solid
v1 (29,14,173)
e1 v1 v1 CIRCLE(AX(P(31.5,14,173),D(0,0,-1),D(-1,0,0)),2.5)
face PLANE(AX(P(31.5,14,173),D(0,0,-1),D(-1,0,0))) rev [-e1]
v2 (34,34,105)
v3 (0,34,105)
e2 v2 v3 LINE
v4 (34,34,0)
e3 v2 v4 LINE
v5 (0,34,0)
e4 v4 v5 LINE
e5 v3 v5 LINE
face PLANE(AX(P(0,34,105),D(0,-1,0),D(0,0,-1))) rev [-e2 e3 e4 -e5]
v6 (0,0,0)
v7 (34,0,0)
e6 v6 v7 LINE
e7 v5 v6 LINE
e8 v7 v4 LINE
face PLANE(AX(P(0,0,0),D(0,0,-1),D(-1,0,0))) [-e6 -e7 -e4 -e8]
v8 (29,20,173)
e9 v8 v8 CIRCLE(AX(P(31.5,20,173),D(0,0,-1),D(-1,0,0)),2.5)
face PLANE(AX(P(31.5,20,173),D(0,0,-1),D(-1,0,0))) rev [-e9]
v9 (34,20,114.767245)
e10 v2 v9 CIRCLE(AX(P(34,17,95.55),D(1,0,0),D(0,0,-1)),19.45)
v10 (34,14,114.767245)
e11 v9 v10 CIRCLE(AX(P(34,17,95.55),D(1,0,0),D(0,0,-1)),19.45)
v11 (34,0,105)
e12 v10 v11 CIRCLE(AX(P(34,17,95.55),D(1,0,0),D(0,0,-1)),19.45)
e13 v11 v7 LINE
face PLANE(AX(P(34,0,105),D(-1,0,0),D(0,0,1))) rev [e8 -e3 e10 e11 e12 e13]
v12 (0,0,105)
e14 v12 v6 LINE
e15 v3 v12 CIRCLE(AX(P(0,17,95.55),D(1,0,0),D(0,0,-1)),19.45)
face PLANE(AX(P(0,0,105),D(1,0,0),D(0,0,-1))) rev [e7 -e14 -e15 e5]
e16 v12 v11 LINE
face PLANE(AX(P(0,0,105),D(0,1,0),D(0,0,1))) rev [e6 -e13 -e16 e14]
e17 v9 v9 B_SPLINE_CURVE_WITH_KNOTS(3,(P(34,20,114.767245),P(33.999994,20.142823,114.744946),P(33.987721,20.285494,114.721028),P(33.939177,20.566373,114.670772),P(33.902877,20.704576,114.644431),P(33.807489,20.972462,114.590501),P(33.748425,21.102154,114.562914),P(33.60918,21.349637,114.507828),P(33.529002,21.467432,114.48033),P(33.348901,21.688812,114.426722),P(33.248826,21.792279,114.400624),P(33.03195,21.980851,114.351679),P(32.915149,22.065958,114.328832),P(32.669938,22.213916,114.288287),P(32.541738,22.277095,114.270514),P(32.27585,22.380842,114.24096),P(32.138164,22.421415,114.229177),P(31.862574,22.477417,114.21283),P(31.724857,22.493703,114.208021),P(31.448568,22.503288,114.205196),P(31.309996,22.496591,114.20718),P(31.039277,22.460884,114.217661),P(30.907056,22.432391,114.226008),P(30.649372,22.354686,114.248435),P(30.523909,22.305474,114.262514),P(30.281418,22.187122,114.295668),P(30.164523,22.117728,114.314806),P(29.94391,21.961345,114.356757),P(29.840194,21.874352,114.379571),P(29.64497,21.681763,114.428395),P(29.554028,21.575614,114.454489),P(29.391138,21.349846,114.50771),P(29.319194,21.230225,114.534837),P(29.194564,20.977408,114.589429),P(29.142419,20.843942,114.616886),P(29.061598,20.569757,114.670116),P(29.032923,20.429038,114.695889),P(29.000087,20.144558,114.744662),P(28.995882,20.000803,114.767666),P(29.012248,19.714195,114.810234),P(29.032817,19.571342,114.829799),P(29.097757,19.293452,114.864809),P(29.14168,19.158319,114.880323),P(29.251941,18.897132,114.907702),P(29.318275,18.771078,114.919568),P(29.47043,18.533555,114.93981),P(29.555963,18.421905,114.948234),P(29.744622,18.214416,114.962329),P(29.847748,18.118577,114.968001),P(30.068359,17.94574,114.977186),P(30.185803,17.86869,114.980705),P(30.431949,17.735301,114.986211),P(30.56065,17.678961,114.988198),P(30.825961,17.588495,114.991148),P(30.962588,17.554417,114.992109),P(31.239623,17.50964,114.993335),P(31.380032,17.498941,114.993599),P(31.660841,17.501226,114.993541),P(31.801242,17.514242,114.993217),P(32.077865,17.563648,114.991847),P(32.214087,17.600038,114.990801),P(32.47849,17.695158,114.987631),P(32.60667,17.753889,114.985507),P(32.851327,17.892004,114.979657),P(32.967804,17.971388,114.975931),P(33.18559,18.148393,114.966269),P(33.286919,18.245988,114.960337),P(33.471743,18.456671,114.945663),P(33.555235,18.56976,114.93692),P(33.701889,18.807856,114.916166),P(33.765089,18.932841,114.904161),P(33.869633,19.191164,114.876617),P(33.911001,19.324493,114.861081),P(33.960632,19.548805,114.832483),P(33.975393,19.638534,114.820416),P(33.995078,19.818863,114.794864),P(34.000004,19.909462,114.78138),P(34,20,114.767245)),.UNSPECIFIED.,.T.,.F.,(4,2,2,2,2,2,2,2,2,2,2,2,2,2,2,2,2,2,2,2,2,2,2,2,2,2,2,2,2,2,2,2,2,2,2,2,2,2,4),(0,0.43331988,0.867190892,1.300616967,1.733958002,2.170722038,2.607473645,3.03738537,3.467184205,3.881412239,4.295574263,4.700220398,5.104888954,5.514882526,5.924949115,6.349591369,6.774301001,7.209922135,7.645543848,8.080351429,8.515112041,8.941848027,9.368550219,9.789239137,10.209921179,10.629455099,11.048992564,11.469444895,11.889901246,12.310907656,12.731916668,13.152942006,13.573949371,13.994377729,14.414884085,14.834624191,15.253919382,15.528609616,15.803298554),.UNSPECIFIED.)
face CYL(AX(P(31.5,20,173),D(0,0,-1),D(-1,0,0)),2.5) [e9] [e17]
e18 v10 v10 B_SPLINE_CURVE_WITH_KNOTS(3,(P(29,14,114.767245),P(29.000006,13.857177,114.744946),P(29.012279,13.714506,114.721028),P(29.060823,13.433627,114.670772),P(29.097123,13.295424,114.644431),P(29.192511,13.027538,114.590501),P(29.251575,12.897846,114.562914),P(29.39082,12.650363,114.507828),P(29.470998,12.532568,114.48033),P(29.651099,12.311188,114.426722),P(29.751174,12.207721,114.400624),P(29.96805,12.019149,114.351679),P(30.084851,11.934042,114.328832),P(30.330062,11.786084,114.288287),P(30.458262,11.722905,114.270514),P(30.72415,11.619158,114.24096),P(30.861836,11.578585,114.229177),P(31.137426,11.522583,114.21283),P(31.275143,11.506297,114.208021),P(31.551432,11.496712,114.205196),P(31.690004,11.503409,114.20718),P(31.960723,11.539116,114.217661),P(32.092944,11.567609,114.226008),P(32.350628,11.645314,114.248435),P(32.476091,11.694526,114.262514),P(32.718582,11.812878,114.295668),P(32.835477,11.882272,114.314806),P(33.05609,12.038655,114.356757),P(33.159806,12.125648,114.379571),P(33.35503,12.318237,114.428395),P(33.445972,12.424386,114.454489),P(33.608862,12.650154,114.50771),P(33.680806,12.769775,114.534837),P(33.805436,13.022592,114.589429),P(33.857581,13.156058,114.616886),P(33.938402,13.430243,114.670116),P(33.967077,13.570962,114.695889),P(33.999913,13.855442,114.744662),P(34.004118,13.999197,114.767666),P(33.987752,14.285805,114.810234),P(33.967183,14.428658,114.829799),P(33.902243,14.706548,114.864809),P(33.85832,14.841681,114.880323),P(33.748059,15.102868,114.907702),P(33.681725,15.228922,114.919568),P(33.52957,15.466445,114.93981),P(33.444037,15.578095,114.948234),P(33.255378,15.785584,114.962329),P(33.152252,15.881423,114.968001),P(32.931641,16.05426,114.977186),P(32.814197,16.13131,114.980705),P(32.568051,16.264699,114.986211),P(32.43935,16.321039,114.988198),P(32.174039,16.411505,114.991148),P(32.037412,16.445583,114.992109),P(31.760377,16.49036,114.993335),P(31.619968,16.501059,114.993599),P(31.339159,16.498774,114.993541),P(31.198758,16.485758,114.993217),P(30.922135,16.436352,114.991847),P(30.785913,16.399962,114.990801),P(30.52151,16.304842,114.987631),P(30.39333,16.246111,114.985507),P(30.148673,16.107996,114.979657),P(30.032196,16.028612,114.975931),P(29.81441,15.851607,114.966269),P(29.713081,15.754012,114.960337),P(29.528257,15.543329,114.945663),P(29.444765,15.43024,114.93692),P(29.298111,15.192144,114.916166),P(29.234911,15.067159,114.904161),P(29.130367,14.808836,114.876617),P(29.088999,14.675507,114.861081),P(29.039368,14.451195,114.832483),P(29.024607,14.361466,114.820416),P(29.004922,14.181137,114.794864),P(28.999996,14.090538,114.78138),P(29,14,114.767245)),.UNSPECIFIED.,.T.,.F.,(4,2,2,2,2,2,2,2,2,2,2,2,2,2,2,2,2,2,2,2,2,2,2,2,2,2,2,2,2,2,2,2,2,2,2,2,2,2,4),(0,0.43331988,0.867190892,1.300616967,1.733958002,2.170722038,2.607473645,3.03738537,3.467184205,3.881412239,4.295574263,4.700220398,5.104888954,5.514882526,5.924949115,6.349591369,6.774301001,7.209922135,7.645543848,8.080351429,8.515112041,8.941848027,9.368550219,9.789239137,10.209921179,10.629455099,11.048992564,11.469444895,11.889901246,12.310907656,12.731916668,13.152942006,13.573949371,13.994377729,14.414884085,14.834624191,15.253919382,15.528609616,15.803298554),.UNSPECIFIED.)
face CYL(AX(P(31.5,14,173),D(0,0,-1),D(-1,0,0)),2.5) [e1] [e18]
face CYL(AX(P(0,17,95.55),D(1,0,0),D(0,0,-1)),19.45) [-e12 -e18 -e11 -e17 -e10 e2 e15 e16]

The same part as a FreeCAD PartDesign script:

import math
import FreeCAD as App
import Part
import Sketcher


def add_polygon(sketch, points):
    """Adds a closed chain of lines whose ends are joined by coincident constraints."""
    first, n = sketch.GeometryCount, len(points)
    for a, b in zip(points, points[1:] + points[:1]):
        sketch.addGeometry(Part.LineSegment(App.Vector(*a, 0), App.Vector(*b, 0)), False)
    for i in range(n):
        sketch.addConstraint(Sketcher.Constraint("Coincident", first + i, 2, first + (i + 1) % n, 1))

doc = App.newDocument("Part")
body = doc.addObject("PartDesign::Body", "Body")

# Sketch on XY plane
sketch1 = body.newObject("Sketcher::SketchObject", "Sketch")
sketch1.AttachmentSupport = (doc.getObject("XY_Plane"), [""])
sketch1.MapMode = "FlatFace"
add_polygon(sketch1, [(0, 34), (0, 0), (34, 0), (34, 34)])  # lines 0-3
sketch1.addConstraint(Sketcher.Constraint("Vertical", 0))
sketch1.addConstraint(Sketcher.Constraint("Horizontal", 1))
sketch1.addConstraint(Sketcher.Constraint("Vertical", 2))
sketch1.addConstraint(Sketcher.Constraint("Horizontal", 3))
sketch1.addConstraint(Sketcher.Constraint("Coincident", 0, 2, -1, 1))
sketch1.addConstraint(Sketcher.Constraint("Equal", 3, 0))
sketch1.addConstraint(Sketcher.Constraint("DistanceX", 1, 1, 1, 2, 34.0))
pad1 = body.newObject("PartDesign::Pad", "Pad")
pad1.Profile = sketch1
pad1.Length = 105

# Sketch on YZ plane
sketch2 = body.newObject("Sketcher::SketchObject", "Sketch001")
sketch2.AttachmentSupport = (doc.getObject("YZ_Plane"), [""])
sketch2.MapMode = "FlatFace"
sketch2.AttachmentOffset = App.Placement(App.Vector(0, 0, 34), App.Rotation())
sketch2.addGeometry(Part.LineSegment(App.Vector(0, 105, 0), App.Vector(34, 105, 0)), False)
sketch2.addGeometry(Part.ArcOfCircle(Part.Circle(App.Vector(17, 96, 0), App.Vector(0, 0, 1), 19), math.radians(29), math.radians(151)), False)
sketch2.addConstraint(Sketcher.Constraint("Coincident", 0, 1, 1, 2))
sketch2.addConstraint(Sketcher.Constraint("Coincident", 1, 1, 0, 2))
sketch2.addConstraint(Sketcher.Constraint("Horizontal", 0))
sketch2.addConstraint(Sketcher.Constraint("PointOnObject", 0, 1, -2))
sketch2.addConstraint(Sketcher.Constraint("DistanceX", 0, 1, 0, 2, 34.0))
sketch2.addConstraint(Sketcher.Constraint("Radius", 1, 19.45))
sketch2.addConstraint(Sketcher.Constraint("DistanceY", -1, 1, 0, 1, 105.0))
pad2 = body.newObject("PartDesign::Pad", "Pad001")
pad2.Profile = sketch2
pad2.Length = 34
pad2.Reversed = True

# Sketch on XY plane
sketch3 = body.newObject("Sketcher::SketchObject", "Sketch002")
sketch3.AttachmentSupport = (doc.getObject("XY_Plane"), [""])
sketch3.MapMode = "FlatFace"
sketch3.addGeometry(Part.Circle(App.Vector(31.5, 20, 0), App.Vector(0, 0, 1), 2.5), False)
sketch3.addGeometry(Part.Circle(App.Vector(31.5, 14, 0), App.Vector(0, 0, 1), 2.5), False)
sketch3.addConstraint(Sketcher.Constraint("Equal", 0, 1))
sketch3.addConstraint(Sketcher.Constraint("Vertical", 0, 3, 1, 3))
sketch3.addConstraint(Sketcher.Constraint("Diameter", 0, 5.0))
sketch3.addConstraint(Sketcher.Constraint("DistanceY", -1, 1, 0, 3, 20.0))
sketch3.addConstraint(Sketcher.Constraint("DistanceY", -1, 1, 1, 3, 14.0))
sketch3.addConstraint(Sketcher.Constraint("DistanceX", -1, 1, 0, 3, 31.5))
pad3 = body.newObject("PartDesign::Pad", "Pad002")
pad3.Profile = sketch3
pad3.Length = 173

doc.recompute()
